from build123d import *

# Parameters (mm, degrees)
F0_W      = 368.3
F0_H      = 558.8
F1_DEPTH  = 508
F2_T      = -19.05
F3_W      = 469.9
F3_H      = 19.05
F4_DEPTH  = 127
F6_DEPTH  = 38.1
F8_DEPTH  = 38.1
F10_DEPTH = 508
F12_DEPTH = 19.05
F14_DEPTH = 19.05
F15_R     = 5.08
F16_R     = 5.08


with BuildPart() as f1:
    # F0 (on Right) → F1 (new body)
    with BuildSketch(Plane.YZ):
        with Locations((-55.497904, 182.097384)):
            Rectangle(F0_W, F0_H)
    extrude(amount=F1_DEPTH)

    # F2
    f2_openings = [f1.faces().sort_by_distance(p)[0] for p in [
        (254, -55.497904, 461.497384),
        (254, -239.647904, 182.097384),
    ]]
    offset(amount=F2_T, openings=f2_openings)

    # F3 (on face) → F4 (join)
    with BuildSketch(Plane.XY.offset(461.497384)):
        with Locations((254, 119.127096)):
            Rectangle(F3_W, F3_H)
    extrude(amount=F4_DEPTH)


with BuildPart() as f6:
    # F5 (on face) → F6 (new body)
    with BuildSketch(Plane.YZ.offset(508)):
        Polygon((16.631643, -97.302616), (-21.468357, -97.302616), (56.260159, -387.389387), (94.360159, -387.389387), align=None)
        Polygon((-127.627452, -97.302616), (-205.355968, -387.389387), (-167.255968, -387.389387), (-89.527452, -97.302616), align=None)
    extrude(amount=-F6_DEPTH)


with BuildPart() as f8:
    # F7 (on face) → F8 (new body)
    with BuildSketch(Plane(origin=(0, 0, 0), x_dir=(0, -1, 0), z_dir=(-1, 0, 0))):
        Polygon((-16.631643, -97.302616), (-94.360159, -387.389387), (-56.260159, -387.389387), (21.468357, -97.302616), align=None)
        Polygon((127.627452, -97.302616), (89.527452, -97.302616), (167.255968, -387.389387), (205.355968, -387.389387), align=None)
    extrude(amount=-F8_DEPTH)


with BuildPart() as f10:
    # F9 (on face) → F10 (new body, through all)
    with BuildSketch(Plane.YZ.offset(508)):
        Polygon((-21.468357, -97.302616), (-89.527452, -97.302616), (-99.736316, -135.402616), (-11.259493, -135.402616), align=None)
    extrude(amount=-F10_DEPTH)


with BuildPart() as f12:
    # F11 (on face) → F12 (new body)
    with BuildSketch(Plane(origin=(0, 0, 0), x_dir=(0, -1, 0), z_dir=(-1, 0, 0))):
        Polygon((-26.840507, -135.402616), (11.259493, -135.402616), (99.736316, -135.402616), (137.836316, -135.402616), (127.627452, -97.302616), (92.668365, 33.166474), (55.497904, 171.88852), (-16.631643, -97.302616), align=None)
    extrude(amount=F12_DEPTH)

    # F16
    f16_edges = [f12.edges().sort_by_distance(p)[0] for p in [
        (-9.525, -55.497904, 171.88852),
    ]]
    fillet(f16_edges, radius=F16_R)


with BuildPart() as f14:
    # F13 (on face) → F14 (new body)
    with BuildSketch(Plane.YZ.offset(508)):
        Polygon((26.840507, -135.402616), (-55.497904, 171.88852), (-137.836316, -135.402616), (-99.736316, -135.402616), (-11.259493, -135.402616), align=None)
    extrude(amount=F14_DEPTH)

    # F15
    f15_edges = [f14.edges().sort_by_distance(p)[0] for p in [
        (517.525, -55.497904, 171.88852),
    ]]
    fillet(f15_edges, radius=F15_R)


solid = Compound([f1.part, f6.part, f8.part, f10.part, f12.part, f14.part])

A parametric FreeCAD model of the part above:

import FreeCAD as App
import Part
import Sketcher
Q = App.Units.Quantity


def edges_at(feature, points):
    """Names of the edges that pass closest to the given points."""
    edges = feature.Shape.Edges
    near = lambda p: min(range(len(edges)), key=lambda i: edges[i].distToShape(Part.Vertex(*p))[0])
    return sorted({f"Edge{near(p) + 1}" for p in points})


def faces_at(feature, points):
    """Names of the faces that lie closest to the given points."""
    faces = feature.Shape.Faces
    near = lambda p: min(range(len(faces)), key=lambda i: faces[i].distToShape(Part.Vertex(*p))[0])
    return sorted({f"Face{near(p) + 1}" for p in points})


def add_polygon(sketch, points):
    """Adds a closed chain of lines whose ends are joined by coincident constraints."""
    first, n = sketch.GeometryCount, len(points)
    for a, b in zip(points, points[1:] + points[:1]):
        sketch.addGeometry(Part.LineSegment(App.Vector(*a, 0), App.Vector(*b, 0)), False)
    for i in range(n):
        sketch.addConstraint(Sketcher.Constraint("Coincident", first + i, 2, first + (i + 1) % n, 1))

doc = App.newDocument("Part")
params = doc.addObject("Spreadsheet::Sheet", "Params")
for row, (alias, value) in enumerate([
    ("sketch1_height", "22 in"),
    ("sketch1_width", "14.5 in"),
    ("pad1_length", "20 in"),
    ("thickness_wall", "0.75 in"),
    ("sketch2_width", "18.5 in"),
    ("sketch2_height", "0.75 in"),
    ("pad2_length", "5 in"),
    ("sketch3_width", "1.5 in"),
    ("pad3_length", "1.5 in"),
    ("sketch4_width", "1.5 in"),
    ("pad4_length", "1.5 in"),
    ("pad5_length", "20 in"),
    ("pad6_length", "0.75 in"),
    ("fillet_radius", "0.2 in"),
    ("pad7_length", "0.75 in"),
    ("fillet2_radius", "0.2 in"),
], start=1):
    params.set(f"A{row}", alias)
    params.set(f"B{row}", "=" + value)
    params.setAlias(f"B{row}", alias)

body = doc.addObject("PartDesign::Body", "Body")

sketch1 = body.newObject("Sketcher::SketchObject", "Sketch")
sketch1.AttachmentSupport = (doc.getObject("YZ_Plane"), [""])
sketch1.MapMode = "FlatFace"
add_polygon(sketch1, [(-240, 461), (-240, -97), (129, -97), (129, 461)])
sketch1.addConstraint([
    Sketcher.Constraint("Vertical", 0),
    Sketcher.Constraint("Horizontal", 1),
    Sketcher.Constraint("Vertical", 2),
    Sketcher.Constraint("Horizontal", 3),
    Sketcher.Constraint("DistanceY", 0, 2, 0, 1, Q("22 in")),
    Sketcher.Constraint("DistanceX", 1, 1, 1, 2, Q("14.5 in")),
    Sketcher.Constraint("DistanceX", 0, 2, -1, 1, Q("239.647904 mm")),
    Sketcher.Constraint("DistanceY", 0, 2, -1, 1, Q("97.302616 mm")),
])
sketch1.setExpression("Constraints[8]", "Params.sketch1_height")
sketch1.setExpression("Constraints[9]", "Params.sketch1_width")
pad1 = body.newObject("PartDesign::Pad", "Pad")
pad1.Profile = sketch1
pad1.setExpression("Length", "Params.pad1_length")
doc.recompute()

thickness = body.newObject("PartDesign::Thickness", "Thickness")
thickness.Base = (pad1, faces_at(pad1, [(254, -55.498, 461.497), (254, -239.648, 182.097)]))
thickness.setExpression("Value", "Params.thickness_wall")
thickness.Reversed = True
thickness.Join = "Arc"

sketch2 = body.newObject("Sketcher::SketchObject", "Sketch001")
sketch2.AttachmentSupport = (doc.getObject("XY_Plane"), [""])
sketch2.MapMode = "FlatFace"
sketch2.AttachmentOffset = App.Placement(App.Vector(0, 0, 461.497384), App.Rotation())
add_polygon(sketch2, [(19, 129), (19, 110), (489, 110), (489, 129)])
sketch2.addConstraint([
    Sketcher.Constraint("Vertical", 0),
    Sketcher.Constraint("Horizontal", 1),
    Sketcher.Constraint("Vertical", 2),
    Sketcher.Constraint("Horizontal", 3),
    Sketcher.Constraint("DistanceX", 1, 1, 1, 2, Q("18.5 in")),
    Sketcher.Constraint("DistanceY", 0, 2, 0, 1, Q("0.75 in")),
    Sketcher.Constraint("DistanceX", -1, 1, 0, 2, Q("0.75 in")),
    Sketcher.Constraint("DistanceY", -1, 1, 0, 2, Q("109.602096 mm")),
])
sketch2.setExpression("Constraints[8]", "Params.sketch2_width")
sketch2.setExpression("Constraints[9]", "Params.sketch2_height")
pad2 = body.newObject("PartDesign::Pad", "Pad001")
pad2.Profile = sketch2
pad2.setExpression("Length", "Params.pad2_length")
body2 = doc.addObject("PartDesign::Body", "Body001")
body2.AllowCompound = True

sketch3 = body2.newObject("Sketcher::SketchObject", "Sketch002")
sketch3.AttachmentSupport = (doc.getObject("YZ_Plane001"), [""])
sketch3.MapMode = "FlatFace"
sketch3.AttachmentOffset = App.Placement(App.Vector(0, 0, 20 * 25.4), App.Rotation())
add_polygon(sketch3, [(17, -97), (-21, -97), (56, -387), (94, -387)])
add_polygon(sketch3, [(-128, -97), (-205, -387), (-167, -387), (-90, -97)])
sketch3.addConstraint([
    Sketcher.Constraint("Horizontal", 0),
    Sketcher.Constraint("Horizontal", 2),
    Sketcher.Constraint("Horizontal", 5),
    Sketcher.Constraint("Horizontal", 7),
    Sketcher.Constraint("Parallel", 1, 3),
    Sketcher.Constraint("Parallel", 4, 6),
    Sketcher.Constraint("Horizontal", 2, 2, 4, 2),
    Sketcher.Constraint("Horizontal", 3, 2, 6, 2),
    Sketcher.Constraint("Equal", 2, 5),
    Sketcher.Constraint("Equal", 3, 4),
    Sketcher.Constraint("DistanceX", 0, 2, 0, 1, Q("1.5 in")),
    Sketcher.Constraint("Angle", 1, Q("-75 deg")),
    Sketcher.Constraint("DistanceX", -1, 1, 1, 2, Q("56.260159 mm")),
    Sketcher.Constraint("DistanceX", 5, 2, -1, 1, Q("167.255968 mm")),
    Sketcher.Constraint("DistanceX", 6, 2, -1, 1, Q("89.527452 mm")),
    Sketcher.Constraint("DistanceY", 0, 2, -1, 1, Q("97.302616 mm")),
])
sketch3.setExpression("Constraints[18]", "Params.sketch3_width")
pad3 = body2.newObject("PartDesign::Pad", "Pad002")
pad3.Profile = sketch3
pad3.setExpression("Length", "Params.pad3_length")
pad3.Reversed = True
body3 = doc.addObject("PartDesign::Body", "Body002")
body3.AllowCompound = True

sketch4 = body3.newObject("Sketcher::SketchObject", "Sketch003")
sketch4.AttachmentSupport = (doc.getObject("YZ_Plane002"), [""])
sketch4.MapMode = "FlatFace"
add_polygon(sketch4, [(17, -97), (94, -387), (56, -387), (-21, -97)])
add_polygon(sketch4, [(-128, -97), (-90, -97), (-167, -387), (-205, -387)])
sketch4.addConstraint([
    Sketcher.Constraint("Horizontal", 1),
    Sketcher.Constraint("Horizontal", 3),
    Sketcher.Constraint("Horizontal", 4),
    Sketcher.Constraint("Horizontal", 6),
    Sketcher.Constraint("Parallel", 0, 2),
    Sketcher.Constraint("Parallel", 5, 7),
    Sketcher.Constraint("Horizontal", 3, 2, 4, 2),
    Sketcher.Constraint("Horizontal", 1, 2, 5, 2),
    Sketcher.Constraint("Equal", 3, 4),
    Sketcher.Constraint("Equal", 2, 5),
    Sketcher.Constraint("DistanceX", 1, 2, 1, 1, Q("1.5 in")),
    Sketcher.Constraint("Angle", 0, Q("-75 deg")),
    Sketcher.Constraint("DistanceX", -1, 1, 0, 2, Q("94.360159 mm")),
    Sketcher.Constraint("DistanceX", 4, 2, -1, 1, Q("89.527452 mm")),
    Sketcher.Constraint("DistanceX", 5, 2, -1, 1, Q("167.255968 mm")),
    Sketcher.Constraint("DistanceY", 0, 2, -1, 1, Q("387.389387 mm")),
])
sketch4.setExpression("Constraints[18]", "Params.sketch4_width")
pad4 = body3.newObject("PartDesign::Pad", "Pad003")
pad4.Profile = sketch4
pad4.setExpression("Length", "Params.pad4_length")
body4 = doc.addObject("PartDesign::Body", "Body003")

sketch5 = body4.newObject("Sketcher::SketchObject", "Sketch004")
sketch5.AttachmentSupport = (doc.getObject("YZ_Plane003"), [""])
sketch5.MapMode = "FlatFace"
sketch5.AttachmentOffset = App.Placement(App.Vector(0, 0, 20 * 25.4), App.Rotation())
add_polygon(sketch5, [(-21, -97), (-90, -97), (-100, -135), (-11, -135)])
sketch5.addConstraint([
    Sketcher.Constraint("Horizontal", 0),
    Sketcher.Constraint("Horizontal", 2),
    Sketcher.Constraint("Equal", 1, 3),
    Sketcher.Constraint("Angle", 1, Q("-105 deg")),
    Sketcher.Constraint("DistanceY", 1, 2, 0, 2, Q("1.5 in")),
    Sketcher.Constraint("DistanceX", 0, 2, 0, 1, Q("68.059095 mm")),
    Sketcher.Constraint("DistanceX", 0, 2, -1, 1, Q("89.527452 mm")),
    Sketcher.Constraint("DistanceY", 0, 2, -1, 1, Q("97.302616 mm")),
])
pad5 = body4.newObject("PartDesign::Pad", "Pad004")
pad5.Profile = sketch5
pad5.setExpression("Length", "Params.pad5_length")
pad5.Reversed = True
body5 = doc.addObject("PartDesign::Body", "Body004")

sketch6 = body5.newObject("Sketcher::SketchObject", "Sketch005")
sketch6.AttachmentSupport = (doc.getObject("YZ_Plane004"), [""])
sketch6.MapMode = "FlatFace"
add_polygon(sketch6, [(27, -135), (-138, -135), (-128, -97), (-93, 33), (-55, 172), (17, -97)])
sketch6.addConstraint([
    Sketcher.Constraint("Horizontal", 0),
    Sketcher.Constraint("Parallel", 1, 2),
    Sketcher.Constraint("Parallel", 2, 3),
    Sketcher.Constraint("Parallel", 4, 5),
    Sketcher.Constraint("Horizontal", 1, 2, 4, 2),
    Sketcher.Constraint("Equal", 1, 5),
    Sketcher.Constraint("Angle", 1, Q("75 deg")),
    Sketcher.Constraint("DistanceY", 0, 2, 1, 2, Q("1.5 in")),
    Sketcher.Constraint("Distance", 2, Q("135.071541 mm")),
    Sketcher.Constraint("Distance", 3, Q("143.61563 mm")),
    Sketcher.Constraint("DistanceY", -1, 1, 3, 2, Q("171.88852 mm")),
    Sketcher.Constraint("DistanceX", 0, 2, -1, 1, Q("137.836316 mm")),
])
pad6 = body5.newObject("PartDesign::Pad", "Pad005")
pad6.Profile = sketch6
pad6.setExpression("Length", "Params.pad6_length")
pad6.Reversed = True
doc.recompute()

fillet = body5.newObject("PartDesign::Fillet", "Fillet")
fillet.Base = (pad6, edges_at(pad6, [(-9.525, -55.498, 171.889)]))
fillet.setExpression("Radius", "Params.fillet_radius")
body6 = doc.addObject("PartDesign::Body", "Body005")

sketch7 = body6.newObject("Sketcher::SketchObject", "Sketch006")
sketch7.AttachmentSupport = (doc.getObject("YZ_Plane005"), [""])
sketch7.MapMode = "FlatFace"
sketch7.AttachmentOffset = App.Placement(App.Vector(0, 0, 20 * 25.4), App.Rotation())
add_polygon(sketch7, [(27, -135), (-55, 172), (-138, -135)])
sketch7.addConstraint([
    Sketcher.Constraint("Horizontal", 2),
    Sketcher.Constraint("Equal", 0, 1),
    Sketcher.Constraint("Angle", 0, Q("105 deg")),
    Sketcher.Constraint("DistanceX", 2, 1, 2, 2, Q("164.676823 mm")),
    Sketcher.Constraint("DistanceY", -1, 1, 0, 2, Q("171.88852 mm")),
    Sketcher.Constraint("DistanceX", 0, 2, -1, 1, Q("55.497904 mm")),
])
pad7 = body6.newObject("PartDesign::Pad", "Pad006")
pad7.Profile = sketch7
pad7.setExpression("Length", "Params.pad7_length")
doc.recompute()

fillet2 = body6.newObject("PartDesign::Fillet", "Fillet001")
fillet2.Base = (pad7, edges_at(pad7, [(517.525, -55.498, 171.889)]))
fillet2.setExpression("Radius", "Params.fillet2_radius")

doc.recompute()
